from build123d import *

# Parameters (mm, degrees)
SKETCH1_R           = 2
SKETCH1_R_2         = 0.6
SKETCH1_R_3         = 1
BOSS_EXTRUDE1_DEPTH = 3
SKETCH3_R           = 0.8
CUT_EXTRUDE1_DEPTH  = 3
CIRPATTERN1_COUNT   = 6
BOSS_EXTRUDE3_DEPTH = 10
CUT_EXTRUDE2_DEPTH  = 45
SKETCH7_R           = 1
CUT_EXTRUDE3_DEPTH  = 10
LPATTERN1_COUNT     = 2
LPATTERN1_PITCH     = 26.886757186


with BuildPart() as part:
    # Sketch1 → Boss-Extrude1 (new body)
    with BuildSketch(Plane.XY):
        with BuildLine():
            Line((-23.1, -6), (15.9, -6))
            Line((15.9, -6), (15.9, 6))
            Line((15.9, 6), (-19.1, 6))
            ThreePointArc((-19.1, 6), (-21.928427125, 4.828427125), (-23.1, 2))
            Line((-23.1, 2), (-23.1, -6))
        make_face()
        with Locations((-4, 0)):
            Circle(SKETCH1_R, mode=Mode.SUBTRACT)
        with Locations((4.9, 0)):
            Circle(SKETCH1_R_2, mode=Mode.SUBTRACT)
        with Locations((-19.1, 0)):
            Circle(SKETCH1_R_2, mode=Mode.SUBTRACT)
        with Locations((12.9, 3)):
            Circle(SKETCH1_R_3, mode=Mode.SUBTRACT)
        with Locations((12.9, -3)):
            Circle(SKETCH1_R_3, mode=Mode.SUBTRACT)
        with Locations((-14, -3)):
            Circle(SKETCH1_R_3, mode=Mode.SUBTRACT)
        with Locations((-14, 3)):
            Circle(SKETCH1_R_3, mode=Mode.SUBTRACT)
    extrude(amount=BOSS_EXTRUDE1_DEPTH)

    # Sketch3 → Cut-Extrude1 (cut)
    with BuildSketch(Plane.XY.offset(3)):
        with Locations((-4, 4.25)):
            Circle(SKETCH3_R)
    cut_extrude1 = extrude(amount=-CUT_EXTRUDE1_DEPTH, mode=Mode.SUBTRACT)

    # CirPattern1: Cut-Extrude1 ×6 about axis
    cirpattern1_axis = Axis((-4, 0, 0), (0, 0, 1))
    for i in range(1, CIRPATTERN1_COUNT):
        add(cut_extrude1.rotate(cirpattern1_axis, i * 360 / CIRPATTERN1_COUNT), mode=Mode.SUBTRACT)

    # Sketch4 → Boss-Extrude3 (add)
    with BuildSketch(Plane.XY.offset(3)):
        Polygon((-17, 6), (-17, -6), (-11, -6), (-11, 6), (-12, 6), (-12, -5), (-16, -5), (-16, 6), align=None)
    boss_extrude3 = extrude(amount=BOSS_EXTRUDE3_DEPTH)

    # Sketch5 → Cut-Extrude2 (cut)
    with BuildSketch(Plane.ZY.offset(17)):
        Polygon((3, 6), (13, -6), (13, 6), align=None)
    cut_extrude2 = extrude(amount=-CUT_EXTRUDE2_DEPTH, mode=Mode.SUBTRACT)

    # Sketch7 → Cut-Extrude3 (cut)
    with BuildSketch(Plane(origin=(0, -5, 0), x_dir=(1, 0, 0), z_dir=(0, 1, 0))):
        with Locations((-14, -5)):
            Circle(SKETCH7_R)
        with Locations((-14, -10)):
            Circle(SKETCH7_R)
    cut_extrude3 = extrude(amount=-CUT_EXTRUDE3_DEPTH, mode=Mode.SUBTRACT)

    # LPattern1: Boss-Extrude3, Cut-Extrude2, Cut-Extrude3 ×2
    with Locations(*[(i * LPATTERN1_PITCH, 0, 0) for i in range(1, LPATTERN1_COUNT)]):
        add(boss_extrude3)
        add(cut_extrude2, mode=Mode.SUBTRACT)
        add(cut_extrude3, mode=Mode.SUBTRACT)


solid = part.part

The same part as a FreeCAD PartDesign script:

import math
import FreeCAD as App
import Part
import Sketcher

doc = App.newDocument("Part")
body = doc.addObject("PartDesign::Body", "Body")

sketch1 = body.newObject("Sketcher::SketchObject", "Sketch")
sketch1.AttachmentSupport = (doc.getObject("XY_Plane"), [""])
sketch1.MapMode = "FlatFace"
sketch1.addGeometry([
    Part.LineSegment(App.Vector(-23.1, -6, 0), App.Vector(15.9, -6, 0)),
    Part.LineSegment(App.Vector(15.9, -6, 0), App.Vector(15.9, 6, 0)),
    Part.LineSegment(App.Vector(15.9, 6, 0), App.Vector(-19.1, 6, 0)),
    Part.ArcOfCircle(Part.Circle(App.Vector(-19.1, 2, 0), App.Vector(0, 0, 1), 4), math.radians(90), math.radians(180)),
    Part.LineSegment(App.Vector(-23.1, 2, 0), App.Vector(-23.1, -6, 0)),
    Part.Circle(App.Vector(-14, -3, 0), App.Vector(0, 0, 1), 1),
    Part.Circle(App.Vector(12.9, -3, 0), App.Vector(0, 0, 1), 1),
    Part.Circle(App.Vector(-19.1, 0, 0), App.Vector(0, 0, 1), 0.6),
    Part.Circle(App.Vector(-4, 0, 0), App.Vector(0, 0, 1), 2),
    Part.Circle(App.Vector(-14, 3, 0), App.Vector(0, 0, 1), 1),
    Part.Circle(App.Vector(4.9, 0, 0), App.Vector(0, 0, 1), 0.6),
    Part.Circle(App.Vector(12.9, 3, 0), App.Vector(0, 0, 1), 1),
], False)
sketch1.addConstraint([
    Sketcher.Constraint("Coincident", 0, 2, 1, 1),
    Sketcher.Constraint("Coincident", 1, 2, 2, 1),
    Sketcher.Constraint("Tangent", 2, 2, 3, 1),
    Sketcher.Constraint("Tangent", 3, 2, 4, 1),
    Sketcher.Constraint("Coincident", 4, 2, 0, 1),
    Sketcher.Constraint("Horizontal", 0),
    Sketcher.Constraint("Vertical", 1),
    Sketcher.Constraint("Horizontal", 2),
    Sketcher.Constraint("Vertical", 4),
    Sketcher.Constraint("Equal", 5, 6),
    Sketcher.Constraint("Equal", 6, 9),
    Sketcher.Constraint("Equal", 7, 10),
    Sketcher.Constraint("Equal", 9, 11),
    Sketcher.Constraint("Symmetric", 5, 3, 9, 3, -1),
    Sketcher.Constraint("Symmetric", 6, 3, 11, 3, -1),
    Sketcher.Constraint("PointOnObject", 7, 3, -1),
    Sketcher.Constraint("PointOnObject", 8, 3, -1),
    Sketcher.Constraint("PointOnObject", 10, 3, -1),
    Sketcher.Constraint("Horizontal", 5, 3, 6, 3),
    Sketcher.Constraint("Vertical", 3, 3, 7, 3),
    Sketcher.Constraint("Diameter", 5, 2.0),
    Sketcher.Constraint("Diameter", 8, 4.0),
    Sketcher.Constraint("Radius", 3, 4.0),
    Sketcher.Constraint("Diameter", 7, 1.2),
    Sketcher.Constraint("DistanceX", 0, 1, 0, 2, 39.0),
    Sketcher.Constraint("DistanceY", 1, 1, 1, 2, 12.0),
    Sketcher.Constraint("DistanceY", -1, 1, 3, 3, 2.0),
    Sketcher.Constraint("DistanceX", 5, 3, -1, 1, 14.0),
    Sketcher.Constraint("DistanceY", 5, 3, -1, 1, 3.0),
    Sketcher.Constraint("DistanceX", 8, 3, -1, 1, 4.0),
    Sketcher.Constraint("DistanceX", 3, 3, 6, 3, 32.0),
    Sketcher.Constraint("DistanceX", 10, 3, 6, 3, 8.0),
    Sketcher.Constraint("DistanceX", 3, 3, -1, 1, 19.1),
])
pad1 = body.newObject("PartDesign::Pad", "Pad")
pad1.Profile = sketch1
pad1.Length = 3

sketch2 = body.newObject("Sketcher::SketchObject", "Sketch001")
sketch2.AttachmentSupport = (doc.getObject("XY_Plane"), [""])
sketch2.MapMode = "FlatFace"
sketch2.AttachmentOffset = App.Placement(App.Vector(0, 0, 3), App.Rotation())
sketch2.addGeometry(Part.Circle(App.Vector(-4, 4.2, 0), App.Vector(0, 0, 1), 0.8), False)
sketch2.addConstraint([
    Sketcher.Constraint("Diameter", 0, 1.6),
    Sketcher.Constraint("DistanceX", 0, 3, -1, 1, 4.0),
    Sketcher.Constraint("DistanceY", -1, 1, 0, 3, 4.25),
])
pocket1 = body.newObject("PartDesign::Pocket", "Pocket")
pocket1.Profile = sketch2
pocket1.Length = 3
doc.recompute()

datumline = body.newObject("PartDesign::Line", "DatumLine")
datumline.Placement = App.Placement(App.Vector(-4, 0, 0), App.Rotation(App.Vector(0, 0, 1), App.Vector(0, 0, 1)))
polarpattern = body.newObject("PartDesign::PolarPattern", "PolarPattern")
polarpattern.Originals = [pocket1]
polarpattern.Axis = (datumline, [""])
polarpattern.Angle = 360
polarpattern.Occurrences = 6
body.Tip = polarpattern

sketch3 = body.newObject("Sketcher::SketchObject", "Sketch002")
sketch3.AttachmentSupport = (doc.getObject("XY_Plane"), [""])
sketch3.MapMode = "FlatFace"
sketch3.AttachmentOffset = App.Placement(App.Vector(0, 0, 3), App.Rotation())
sketch3.addGeometry([
    Part.LineSegment(App.Vector(-17, 6, 0), App.Vector(-17, -6, 0)),
    Part.LineSegment(App.Vector(-17, -6, 0), App.Vector(-11, -6, 0)),
    Part.LineSegment(App.Vector(-11, -6, 0), App.Vector(-11, 6, 0)),
    Part.LineSegment(App.Vector(-11, 6, 0), App.Vector(-12, 6, 0)),
    Part.LineSegment(App.Vector(-12, 6, 0), App.Vector(-12, -5, 0)),
    Part.LineSegment(App.Vector(-12, -5, 0), App.Vector(-16, -5, 0)),
    Part.LineSegment(App.Vector(-16, -5, 0), App.Vector(-16, 6, 0)),
    Part.LineSegment(App.Vector(-16, 6, 0), App.Vector(-17, 6, 0)),
], False)
sketch3.addConstraint([
    Sketcher.Constraint("Coincident", 0, 2, 1, 1),
    Sketcher.Constraint("Coincident", 1, 2, 2, 1),
    Sketcher.Constraint("Coincident", 2, 2, 3, 1),
    Sketcher.Constraint("Coincident", 3, 2, 4, 1),
    Sketcher.Constraint("Coincident", 4, 2, 5, 1),
    Sketcher.Constraint("Coincident", 5, 2, 6, 1),
    Sketcher.Constraint("Coincident", 6, 2, 7, 1),
    Sketcher.Constraint("Coincident", 7, 2, 0, 1),
    Sketcher.Constraint("Vertical", 0),
    Sketcher.Constraint("Horizontal", 1),
    Sketcher.Constraint("Vertical", 2),
    Sketcher.Constraint("Horizontal", 3),
    Sketcher.Constraint("Vertical", 4),
    Sketcher.Constraint("Horizontal", 5),
    Sketcher.Constraint("Vertical", 6),
    Sketcher.Constraint("Horizontal", 7),
    Sketcher.Constraint("Horizontal", 3, 2, 6, 2),
    Sketcher.Constraint("Equal", 3, 7),
    Sketcher.Constraint("DistanceX", 1, 1, 1, 2, 6.0),
    Sketcher.Constraint("DistanceX", 3, 2, 3, 1, 1.0),
    Sketcher.Constraint("DistanceY", 0, 2, 0, 1, 12.0),
    Sketcher.Constraint("DistanceY", 4, 2, 4, 1, 11.0),
    Sketcher.Constraint("DistanceX", 0, 2, -1, 1, 17.0),
    Sketcher.Constraint("DistanceY", 0, 2, -1, 1, 6.0),
])
pad2 = body.newObject("PartDesign::Pad", "Pad001")
pad2.Profile = sketch3
pad2.Length = 10

sketch4 = body.newObject("Sketcher::SketchObject", "Sketch003")
sketch4.AttachmentSupport = (doc.getObject("YZ_Plane"), [""])
sketch4.MapMode = "FlatFace"
sketch4.AttachmentOffset = App.Placement(App.Vector(0, 0, -17), App.Rotation())
sketch4.addGeometry([
    Part.LineSegment(App.Vector(6, 3, 0), App.Vector(-6, 13, 0)),
    Part.LineSegment(App.Vector(-6, 13, 0), App.Vector(6, 13, 0)),
    Part.LineSegment(App.Vector(6, 13, 0), App.Vector(6, 3, 0)),
], False)
sketch4.addConstraint([
    Sketcher.Constraint("Coincident", 0, 2, 1, 1),
    Sketcher.Constraint("Coincident", 1, 2, 2, 1),
    Sketcher.Constraint("Coincident", 2, 2, 0, 1),
    Sketcher.Constraint("Horizontal", 1),
    Sketcher.Constraint("Vertical", 2),
    Sketcher.Constraint("DistanceX", 1, 1, 1, 2, 12.0),
    Sketcher.Constraint("DistanceY", 2, 2, 2, 1, 10.0),
    Sketcher.Constraint("DistanceX", 0, 2, -1, 1, 6.0),
    Sketcher.Constraint("DistanceY", -1, 1, 0, 2, 13.0),
])
pocket2 = body.newObject("PartDesign::Pocket", "Pocket001")
pocket2.Profile = sketch4
pocket2.Length = 45
pocket2.Reversed = True

sketch5 = body.newObject("Sketcher::SketchObject", "Sketch004")
sketch5.AttachmentSupport = (doc.getObject("XZ_Plane"), [""])
sketch5.MapMode = "FlatFace"
sketch5.AttachmentOffset = App.Placement(App.Vector(0, 0, 5), App.Rotation())
sketch5.addGeometry([
    Part.Circle(App.Vector(-14, 5, 0), App.Vector(0, 0, 1), 1),
    Part.Circle(App.Vector(-14, 10, 0), App.Vector(0, 0, 1), 1),
], False)
sketch5.addConstraint([
    Sketcher.Constraint("Equal", 0, 1),
    Sketcher.Constraint("Vertical", 0, 3, 1, 3),
    Sketcher.Constraint("Diameter", 0, 2.0),
    Sketcher.Constraint("DistanceX", 0, 3, -1, 1, 14.0),
    Sketcher.Constraint("DistanceY", -1, 1, 0, 3, 5.0),
    Sketcher.Constraint("DistanceY", -1, 1, 1, 3, 10.0),
])
pocket3 = body.newObject("PartDesign::Pocket", "Pocket002")
pocket3.Profile = sketch5
pocket3.Length = 10
pocket3.Reversed = True
doc.recompute()

linearpattern = body.newObject("PartDesign::LinearPattern", "LinearPattern")
linearpattern.Originals = [pad2, pocket2, pocket3]
linearpattern.Direction = (doc.getObject("X_Axis"), [""])
linearpattern.Mode = "offset"
linearpattern.Offset = 26.886757
linearpattern.Occurrences = 2
body.Tip = linearpattern

doc.recompute()
